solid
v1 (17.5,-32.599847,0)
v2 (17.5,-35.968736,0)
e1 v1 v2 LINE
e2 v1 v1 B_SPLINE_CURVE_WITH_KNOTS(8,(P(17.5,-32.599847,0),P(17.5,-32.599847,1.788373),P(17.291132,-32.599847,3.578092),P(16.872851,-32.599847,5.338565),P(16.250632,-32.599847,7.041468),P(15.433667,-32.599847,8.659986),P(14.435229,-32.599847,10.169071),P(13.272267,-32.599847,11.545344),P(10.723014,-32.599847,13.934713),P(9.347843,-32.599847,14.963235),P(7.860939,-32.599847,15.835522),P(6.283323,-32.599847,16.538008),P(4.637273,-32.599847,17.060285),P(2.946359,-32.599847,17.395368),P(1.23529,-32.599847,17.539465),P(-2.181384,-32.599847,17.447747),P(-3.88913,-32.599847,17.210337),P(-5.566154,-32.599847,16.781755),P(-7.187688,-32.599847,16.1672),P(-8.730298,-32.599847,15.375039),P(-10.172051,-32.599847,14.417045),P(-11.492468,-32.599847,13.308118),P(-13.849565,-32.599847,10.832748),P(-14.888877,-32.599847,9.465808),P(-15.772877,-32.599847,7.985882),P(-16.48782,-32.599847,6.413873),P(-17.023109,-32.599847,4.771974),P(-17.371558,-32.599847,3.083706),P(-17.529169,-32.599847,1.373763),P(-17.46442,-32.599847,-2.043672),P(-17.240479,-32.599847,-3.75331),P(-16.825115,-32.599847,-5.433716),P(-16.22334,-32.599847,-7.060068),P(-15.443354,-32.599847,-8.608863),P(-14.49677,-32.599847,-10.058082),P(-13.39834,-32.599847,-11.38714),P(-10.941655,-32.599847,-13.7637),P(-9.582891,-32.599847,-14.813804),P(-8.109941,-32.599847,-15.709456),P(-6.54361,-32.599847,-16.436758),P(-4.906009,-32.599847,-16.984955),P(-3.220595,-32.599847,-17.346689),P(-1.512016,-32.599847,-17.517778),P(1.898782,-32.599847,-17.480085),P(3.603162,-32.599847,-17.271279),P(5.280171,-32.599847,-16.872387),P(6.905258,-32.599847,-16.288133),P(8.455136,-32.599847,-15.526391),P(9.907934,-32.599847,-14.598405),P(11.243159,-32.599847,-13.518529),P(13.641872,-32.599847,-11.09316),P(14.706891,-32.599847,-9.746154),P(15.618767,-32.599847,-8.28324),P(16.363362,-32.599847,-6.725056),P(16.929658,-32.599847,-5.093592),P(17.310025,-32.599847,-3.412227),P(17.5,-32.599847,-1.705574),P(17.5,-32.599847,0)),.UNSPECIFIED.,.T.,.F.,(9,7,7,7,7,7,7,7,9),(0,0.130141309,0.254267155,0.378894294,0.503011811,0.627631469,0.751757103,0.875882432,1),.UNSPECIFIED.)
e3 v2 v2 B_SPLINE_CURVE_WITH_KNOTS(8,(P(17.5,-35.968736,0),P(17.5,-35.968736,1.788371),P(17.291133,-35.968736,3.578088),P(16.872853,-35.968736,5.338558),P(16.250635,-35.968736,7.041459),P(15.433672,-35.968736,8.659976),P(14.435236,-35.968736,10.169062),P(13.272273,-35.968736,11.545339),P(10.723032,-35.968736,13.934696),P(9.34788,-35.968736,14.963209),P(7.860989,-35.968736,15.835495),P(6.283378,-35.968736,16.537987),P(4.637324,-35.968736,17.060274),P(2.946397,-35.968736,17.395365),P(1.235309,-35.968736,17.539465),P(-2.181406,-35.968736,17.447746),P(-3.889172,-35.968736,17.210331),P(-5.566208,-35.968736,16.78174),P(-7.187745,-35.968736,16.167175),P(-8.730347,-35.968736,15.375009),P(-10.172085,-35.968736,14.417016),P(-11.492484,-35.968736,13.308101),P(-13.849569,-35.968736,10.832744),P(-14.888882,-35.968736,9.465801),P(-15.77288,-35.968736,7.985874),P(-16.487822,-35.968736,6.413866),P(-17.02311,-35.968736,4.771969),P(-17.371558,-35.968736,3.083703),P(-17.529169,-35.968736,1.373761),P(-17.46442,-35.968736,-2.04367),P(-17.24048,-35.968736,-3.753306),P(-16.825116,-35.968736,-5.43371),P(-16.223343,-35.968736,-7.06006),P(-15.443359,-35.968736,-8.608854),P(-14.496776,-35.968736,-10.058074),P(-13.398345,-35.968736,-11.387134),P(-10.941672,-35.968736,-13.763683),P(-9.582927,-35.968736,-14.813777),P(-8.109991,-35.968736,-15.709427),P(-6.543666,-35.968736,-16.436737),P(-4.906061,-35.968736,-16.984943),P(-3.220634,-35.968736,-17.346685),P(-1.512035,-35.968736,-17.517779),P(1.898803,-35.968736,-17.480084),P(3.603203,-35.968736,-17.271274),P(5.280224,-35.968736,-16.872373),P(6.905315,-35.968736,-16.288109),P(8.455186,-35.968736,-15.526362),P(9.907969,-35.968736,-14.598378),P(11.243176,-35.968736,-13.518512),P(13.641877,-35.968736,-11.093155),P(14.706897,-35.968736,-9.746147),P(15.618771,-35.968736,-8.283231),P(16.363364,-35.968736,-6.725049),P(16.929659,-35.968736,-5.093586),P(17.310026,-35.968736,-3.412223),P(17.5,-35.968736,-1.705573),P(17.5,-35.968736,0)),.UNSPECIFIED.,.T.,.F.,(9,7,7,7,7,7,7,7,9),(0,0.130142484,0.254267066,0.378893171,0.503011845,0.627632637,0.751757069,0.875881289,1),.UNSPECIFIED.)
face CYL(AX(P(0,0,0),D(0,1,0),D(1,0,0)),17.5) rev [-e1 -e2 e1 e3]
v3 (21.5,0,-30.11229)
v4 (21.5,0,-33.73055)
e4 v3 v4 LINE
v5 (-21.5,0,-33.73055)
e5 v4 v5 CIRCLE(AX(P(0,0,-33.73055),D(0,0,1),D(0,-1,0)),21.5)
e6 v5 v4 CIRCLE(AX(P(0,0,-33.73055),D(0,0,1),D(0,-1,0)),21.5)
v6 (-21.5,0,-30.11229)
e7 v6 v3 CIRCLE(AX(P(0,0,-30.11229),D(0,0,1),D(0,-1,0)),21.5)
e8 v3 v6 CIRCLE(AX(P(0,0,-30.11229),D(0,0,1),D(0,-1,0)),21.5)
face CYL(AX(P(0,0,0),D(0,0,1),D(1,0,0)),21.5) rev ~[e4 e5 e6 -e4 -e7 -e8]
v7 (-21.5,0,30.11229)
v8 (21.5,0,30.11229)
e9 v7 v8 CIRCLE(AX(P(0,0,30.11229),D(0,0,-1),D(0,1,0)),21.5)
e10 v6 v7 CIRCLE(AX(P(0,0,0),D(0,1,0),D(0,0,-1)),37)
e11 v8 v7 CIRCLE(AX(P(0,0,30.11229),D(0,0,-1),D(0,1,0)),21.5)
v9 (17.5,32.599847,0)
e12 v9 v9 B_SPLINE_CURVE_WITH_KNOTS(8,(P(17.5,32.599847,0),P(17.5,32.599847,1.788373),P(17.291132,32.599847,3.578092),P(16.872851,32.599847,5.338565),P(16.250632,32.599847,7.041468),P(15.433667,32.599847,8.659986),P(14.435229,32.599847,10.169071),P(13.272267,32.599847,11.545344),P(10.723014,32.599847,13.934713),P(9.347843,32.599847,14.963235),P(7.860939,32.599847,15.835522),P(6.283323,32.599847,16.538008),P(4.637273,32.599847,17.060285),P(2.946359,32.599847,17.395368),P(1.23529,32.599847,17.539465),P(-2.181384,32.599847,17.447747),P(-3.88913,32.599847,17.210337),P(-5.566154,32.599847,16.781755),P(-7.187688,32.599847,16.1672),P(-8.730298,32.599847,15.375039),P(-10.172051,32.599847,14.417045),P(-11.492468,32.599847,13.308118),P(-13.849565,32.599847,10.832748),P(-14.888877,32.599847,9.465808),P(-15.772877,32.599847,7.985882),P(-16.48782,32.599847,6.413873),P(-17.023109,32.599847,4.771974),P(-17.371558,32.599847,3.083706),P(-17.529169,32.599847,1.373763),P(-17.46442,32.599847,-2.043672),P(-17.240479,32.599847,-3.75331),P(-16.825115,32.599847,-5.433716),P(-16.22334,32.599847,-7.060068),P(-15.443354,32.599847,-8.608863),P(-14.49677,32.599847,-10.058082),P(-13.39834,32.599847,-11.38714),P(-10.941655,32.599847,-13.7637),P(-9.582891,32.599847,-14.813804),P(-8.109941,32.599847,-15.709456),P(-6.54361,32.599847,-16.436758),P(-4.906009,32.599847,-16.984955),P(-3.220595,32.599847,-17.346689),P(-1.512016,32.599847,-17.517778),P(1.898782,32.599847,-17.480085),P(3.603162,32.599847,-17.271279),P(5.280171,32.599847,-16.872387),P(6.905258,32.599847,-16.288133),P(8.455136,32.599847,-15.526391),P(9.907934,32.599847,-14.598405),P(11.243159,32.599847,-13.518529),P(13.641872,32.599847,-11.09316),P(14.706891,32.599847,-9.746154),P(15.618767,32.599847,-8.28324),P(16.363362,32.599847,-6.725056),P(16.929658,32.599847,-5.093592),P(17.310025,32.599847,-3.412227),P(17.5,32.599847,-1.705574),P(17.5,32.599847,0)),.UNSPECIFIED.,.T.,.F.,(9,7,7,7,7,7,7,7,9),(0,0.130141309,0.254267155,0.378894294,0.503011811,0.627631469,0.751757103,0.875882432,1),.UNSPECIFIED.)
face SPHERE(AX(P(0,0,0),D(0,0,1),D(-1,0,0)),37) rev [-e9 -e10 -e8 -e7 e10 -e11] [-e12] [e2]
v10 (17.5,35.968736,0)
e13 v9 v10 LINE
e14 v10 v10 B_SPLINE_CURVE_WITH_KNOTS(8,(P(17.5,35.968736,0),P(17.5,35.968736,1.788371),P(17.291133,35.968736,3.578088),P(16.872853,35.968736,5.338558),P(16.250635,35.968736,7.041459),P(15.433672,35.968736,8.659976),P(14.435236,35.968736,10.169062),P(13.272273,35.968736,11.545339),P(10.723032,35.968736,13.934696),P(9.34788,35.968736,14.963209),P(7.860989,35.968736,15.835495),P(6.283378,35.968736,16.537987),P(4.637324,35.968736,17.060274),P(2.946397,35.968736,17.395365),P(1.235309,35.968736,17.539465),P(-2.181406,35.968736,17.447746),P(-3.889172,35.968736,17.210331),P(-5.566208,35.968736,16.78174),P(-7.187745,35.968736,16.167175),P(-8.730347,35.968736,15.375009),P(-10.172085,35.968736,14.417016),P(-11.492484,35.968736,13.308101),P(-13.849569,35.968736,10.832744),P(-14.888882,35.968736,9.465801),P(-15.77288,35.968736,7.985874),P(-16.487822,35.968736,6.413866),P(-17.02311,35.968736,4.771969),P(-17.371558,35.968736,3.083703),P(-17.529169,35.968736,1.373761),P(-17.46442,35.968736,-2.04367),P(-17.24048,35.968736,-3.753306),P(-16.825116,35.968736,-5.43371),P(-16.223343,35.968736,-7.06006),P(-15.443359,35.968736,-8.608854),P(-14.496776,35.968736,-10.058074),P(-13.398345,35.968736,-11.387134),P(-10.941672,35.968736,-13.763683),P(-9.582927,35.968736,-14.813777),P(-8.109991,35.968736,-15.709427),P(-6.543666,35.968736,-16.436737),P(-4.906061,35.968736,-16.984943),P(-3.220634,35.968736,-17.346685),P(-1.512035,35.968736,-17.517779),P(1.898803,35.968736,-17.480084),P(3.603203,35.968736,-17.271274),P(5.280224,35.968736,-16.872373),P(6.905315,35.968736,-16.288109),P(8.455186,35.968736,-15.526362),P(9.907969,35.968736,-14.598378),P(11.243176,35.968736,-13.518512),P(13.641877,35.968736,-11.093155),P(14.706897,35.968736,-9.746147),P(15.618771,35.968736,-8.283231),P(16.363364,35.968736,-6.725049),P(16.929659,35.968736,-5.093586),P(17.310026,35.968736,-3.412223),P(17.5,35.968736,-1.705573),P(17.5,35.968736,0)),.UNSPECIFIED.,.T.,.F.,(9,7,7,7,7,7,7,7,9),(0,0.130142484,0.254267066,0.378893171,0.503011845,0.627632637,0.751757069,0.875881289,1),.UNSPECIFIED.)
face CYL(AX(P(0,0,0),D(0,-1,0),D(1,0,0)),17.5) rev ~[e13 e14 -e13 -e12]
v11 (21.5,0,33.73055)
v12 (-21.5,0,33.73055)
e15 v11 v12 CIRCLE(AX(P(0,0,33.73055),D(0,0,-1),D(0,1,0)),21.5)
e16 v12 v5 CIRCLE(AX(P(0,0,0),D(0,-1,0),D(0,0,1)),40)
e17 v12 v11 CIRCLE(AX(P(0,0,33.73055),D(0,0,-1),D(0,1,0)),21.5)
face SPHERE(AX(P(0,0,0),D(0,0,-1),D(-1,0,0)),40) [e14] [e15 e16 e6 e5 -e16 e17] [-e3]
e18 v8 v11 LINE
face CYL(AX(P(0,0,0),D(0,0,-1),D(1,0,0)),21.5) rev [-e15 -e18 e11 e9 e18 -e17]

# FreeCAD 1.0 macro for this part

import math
import FreeCAD as App
import Part
import Sketcher
Q = App.Units.Quantity

doc = App.newDocument("Part")
body = doc.addObject("PartDesign::Body", "Body")

# Sketch on XZ plane
sketch1 = body.newObject("Sketcher::SketchObject", "Sketch")
sketch1.AttachmentSupport = (doc.getObject("XZ_Plane"), [""])
sketch1.MapMode = "FlatFace"
sketch1.addGeometry([
    Part.LineSegment(App.Vector(0, 37, 0), App.Vector(0, 40, 0)),
    Part.ArcOfCircle(Part.Circle(App.Vector(0, 0, 0), App.Vector(0, 0, 1), 40), math.radians(90), math.radians(270)),
    Part.LineSegment(App.Vector(0, -40, 0), App.Vector(0, -37, 0)),
    Part.ArcOfCircle(Part.Circle(App.Vector(0, 0, 0), App.Vector(0, 0, 1), 37), math.radians(90), math.radians(270)),
], False)
sketch1.addConstraint([
    Sketcher.Constraint("Coincident", 0, 2, 1, 1),
    Sketcher.Constraint("Coincident", 1, 2, 2, 1),
    Sketcher.Constraint("Coincident", 2, 2, 3, 2),
    Sketcher.Constraint("Coincident", 3, 1, 0, 1),
    Sketcher.Constraint("Vertical", 0),
    Sketcher.Constraint("Vertical", 2),
    Sketcher.Constraint("Coincident", 1, 3, -1, 1),
    Sketcher.Constraint("Coincident", 3, 3, -1, 1),
    Sketcher.Constraint("PointOnObject", 0, 2, -2),
    Sketcher.Constraint("PointOnObject", 1, 2, -2),
    Sketcher.Constraint("Radius", 1, Q("40 mm")),
    Sketcher.Constraint("Radius", 3, Q("37 mm")),
])
revolution = body.newObject("PartDesign::Revolution", "Revolution")
revolution.Profile = sketch1
revolution.ReferenceAxis = (sketch1, ["V_Axis"])
revolution.Angle = 360

# Sketch on XZ plane
sketch2 = body.newObject("Sketcher::SketchObject", "Sketch001")
sketch2.AttachmentSupport = (doc.getObject("XZ_Plane"), [""])
sketch2.MapMode = "FlatFace"
sketch2.addGeometry(Part.Circle(App.Vector(0, 0, 0), App.Vector(0, 0, 1), 18), False)
sketch2.addConstraint([
    Sketcher.Constraint("Coincident", 0, 3, -1, 1),
    Sketcher.Constraint("Diameter", 0, Q("35 mm")),
])
pocket1 = body.newObject("PartDesign::Pocket", "Pocket")
pocket1.Profile = sketch2
pocket1.Type = "ThroughAll"
pocket1.Midplane = True

# Sketch on XY plane
sketch3 = body.newObject("Sketcher::SketchObject", "Sketch002")
sketch3.AttachmentSupport = (doc.getObject("XY_Plane"), [""])
sketch3.MapMode = "FlatFace"
sketch3.addGeometry(Part.Circle(App.Vector(0, 0, 0), App.Vector(0, 0, 1), 22), False)
sketch3.addConstraint([
    Sketcher.Constraint("Coincident", 0, 3, -1, 1),
    Sketcher.Constraint("Diameter", 0, Q("43 mm")),
])
pocket2 = body.newObject("PartDesign::Pocket", "Pocket001")
pocket2.Profile = sketch3
pocket2.Type = "ThroughAll"
pocket2.Midplane = True

doc.recompute()
